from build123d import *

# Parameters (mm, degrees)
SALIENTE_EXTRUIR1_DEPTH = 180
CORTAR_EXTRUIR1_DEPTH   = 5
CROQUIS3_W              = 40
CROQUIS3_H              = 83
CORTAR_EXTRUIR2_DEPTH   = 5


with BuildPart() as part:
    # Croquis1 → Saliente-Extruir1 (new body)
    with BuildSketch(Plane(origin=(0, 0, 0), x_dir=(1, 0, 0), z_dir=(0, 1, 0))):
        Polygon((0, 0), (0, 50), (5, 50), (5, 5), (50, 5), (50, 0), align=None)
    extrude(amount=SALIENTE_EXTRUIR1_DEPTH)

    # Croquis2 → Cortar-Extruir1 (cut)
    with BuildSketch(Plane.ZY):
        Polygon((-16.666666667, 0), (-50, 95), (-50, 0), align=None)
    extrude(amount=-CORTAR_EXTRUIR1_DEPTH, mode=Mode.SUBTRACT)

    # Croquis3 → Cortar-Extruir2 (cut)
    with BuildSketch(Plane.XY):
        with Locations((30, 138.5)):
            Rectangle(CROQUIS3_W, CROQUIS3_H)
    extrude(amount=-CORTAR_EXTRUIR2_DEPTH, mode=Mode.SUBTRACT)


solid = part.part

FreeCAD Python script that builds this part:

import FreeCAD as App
import Part
import Sketcher
Q = App.Units.Quantity


def add_polygon(sketch, points):
    """Adds a closed chain of lines whose ends are joined by coincident constraints."""
    first, n = sketch.GeometryCount, len(points)
    for a, b in zip(points, points[1:] + points[:1]):
        sketch.addGeometry(Part.LineSegment(App.Vector(*a, 0), App.Vector(*b, 0)), False)
    for i in range(n):
        sketch.addConstraint(Sketcher.Constraint("Coincident", first + i, 2, first + (i + 1) % n, 1))

doc = App.newDocument("Part")
body = doc.addObject("PartDesign::Body", "Body")

sketch1 = doc.addObject("Sketcher::SketchObject", "Sketch")
body.addObject(sketch1)
sketch1.AttachmentSupport = (doc.XZ_Plane, [""])
sketch1.MapMode = "FlatFace"
add_polygon(sketch1, [(0, -50), (0, 0), (50, 0), (50, -5), (5, -5), (5, -50)])
sketch1.addConstraint([
    Sketcher.Constraint("Vertical", 0),
    Sketcher.Constraint("Horizontal", 1),
    Sketcher.Constraint("Vertical", 2),
    Sketcher.Constraint("Horizontal", 3),
    Sketcher.Constraint("Vertical", 4),
    Sketcher.Constraint("Horizontal", 5),
    Sketcher.Constraint("Coincident", 0, 2, -1, 1),
    Sketcher.Constraint("Equal", 1, 0),
    Sketcher.Constraint("Equal", 5, 2),
    Sketcher.Constraint("DistanceX", 1, 1, 1, 2, Q("50 mm")),
    Sketcher.Constraint("DistanceX", 3, 2, 3, 1, Q("45 mm")),
])
pad1 = doc.addObject("PartDesign::Pad", "Pad")
body.addObject(pad1)
pad1.Profile = sketch1
pad1.Length = 180
pad1.Reversed = True

sketch2 = doc.addObject("Sketcher::SketchObject", "Sketch001")
body.addObject(sketch2)
sketch2.AttachmentSupport = (doc.YZ_Plane, [""])
sketch2.MapMode = "FlatFace"
add_polygon(sketch2, [(0, -16.666667), (95, -50), (0, -50)])
sketch2.addConstraint([
    Sketcher.Constraint("Horizontal", 1),
    Sketcher.Constraint("Vertical", 2),
    Sketcher.Constraint("PointOnObject", 1, 2, -2),
    Sketcher.Constraint("DistanceX", 1, 2, 1, 1, Q("95 mm")),
    Sketcher.Constraint("DistanceY", 0, 2, -1, 1, Q("50 mm")),
    Sketcher.Constraint("DistanceY", 2, 1, 2, 2, Q("33.333333 mm")),
])
pocket1 = doc.addObject("PartDesign::Pocket", "Pocket")
body.addObject(pocket1)
pocket1.Profile = sketch2
pocket1.Length = 5
pocket1.Reversed = True

sketch3 = doc.addObject("Sketcher::SketchObject", "Sketch002")
body.addObject(sketch3)
sketch3.AttachmentSupport = (doc.XY_Plane, [""])
sketch3.MapMode = "FlatFace"
add_polygon(sketch3, [(10, 180), (10, 97), (50, 97), (50, 180)])
sketch3.addConstraint([
    Sketcher.Constraint("Vertical", 0),
    Sketcher.Constraint("Horizontal", 1),
    Sketcher.Constraint("Vertical", 2),
    Sketcher.Constraint("Horizontal", 3),
    Sketcher.Constraint("DistanceX", 1, 1, 1, 2, Q("40 mm")),
    Sketcher.Constraint("DistanceY", 0, 2, 0, 1, Q("83 mm")),
    Sketcher.Constraint("DistanceX", -1, 1, 0, 2, Q("10 mm")),
    Sketcher.Constraint("DistanceY", -1, 1, 0, 2, Q("97 mm")),
])
pocket2 = doc.addObject("PartDesign::Pocket", "Pocket001")
body.addObject(pocket2)
pocket2.Profile = sketch3
pocket2.Length = 5

doc.recompute()
